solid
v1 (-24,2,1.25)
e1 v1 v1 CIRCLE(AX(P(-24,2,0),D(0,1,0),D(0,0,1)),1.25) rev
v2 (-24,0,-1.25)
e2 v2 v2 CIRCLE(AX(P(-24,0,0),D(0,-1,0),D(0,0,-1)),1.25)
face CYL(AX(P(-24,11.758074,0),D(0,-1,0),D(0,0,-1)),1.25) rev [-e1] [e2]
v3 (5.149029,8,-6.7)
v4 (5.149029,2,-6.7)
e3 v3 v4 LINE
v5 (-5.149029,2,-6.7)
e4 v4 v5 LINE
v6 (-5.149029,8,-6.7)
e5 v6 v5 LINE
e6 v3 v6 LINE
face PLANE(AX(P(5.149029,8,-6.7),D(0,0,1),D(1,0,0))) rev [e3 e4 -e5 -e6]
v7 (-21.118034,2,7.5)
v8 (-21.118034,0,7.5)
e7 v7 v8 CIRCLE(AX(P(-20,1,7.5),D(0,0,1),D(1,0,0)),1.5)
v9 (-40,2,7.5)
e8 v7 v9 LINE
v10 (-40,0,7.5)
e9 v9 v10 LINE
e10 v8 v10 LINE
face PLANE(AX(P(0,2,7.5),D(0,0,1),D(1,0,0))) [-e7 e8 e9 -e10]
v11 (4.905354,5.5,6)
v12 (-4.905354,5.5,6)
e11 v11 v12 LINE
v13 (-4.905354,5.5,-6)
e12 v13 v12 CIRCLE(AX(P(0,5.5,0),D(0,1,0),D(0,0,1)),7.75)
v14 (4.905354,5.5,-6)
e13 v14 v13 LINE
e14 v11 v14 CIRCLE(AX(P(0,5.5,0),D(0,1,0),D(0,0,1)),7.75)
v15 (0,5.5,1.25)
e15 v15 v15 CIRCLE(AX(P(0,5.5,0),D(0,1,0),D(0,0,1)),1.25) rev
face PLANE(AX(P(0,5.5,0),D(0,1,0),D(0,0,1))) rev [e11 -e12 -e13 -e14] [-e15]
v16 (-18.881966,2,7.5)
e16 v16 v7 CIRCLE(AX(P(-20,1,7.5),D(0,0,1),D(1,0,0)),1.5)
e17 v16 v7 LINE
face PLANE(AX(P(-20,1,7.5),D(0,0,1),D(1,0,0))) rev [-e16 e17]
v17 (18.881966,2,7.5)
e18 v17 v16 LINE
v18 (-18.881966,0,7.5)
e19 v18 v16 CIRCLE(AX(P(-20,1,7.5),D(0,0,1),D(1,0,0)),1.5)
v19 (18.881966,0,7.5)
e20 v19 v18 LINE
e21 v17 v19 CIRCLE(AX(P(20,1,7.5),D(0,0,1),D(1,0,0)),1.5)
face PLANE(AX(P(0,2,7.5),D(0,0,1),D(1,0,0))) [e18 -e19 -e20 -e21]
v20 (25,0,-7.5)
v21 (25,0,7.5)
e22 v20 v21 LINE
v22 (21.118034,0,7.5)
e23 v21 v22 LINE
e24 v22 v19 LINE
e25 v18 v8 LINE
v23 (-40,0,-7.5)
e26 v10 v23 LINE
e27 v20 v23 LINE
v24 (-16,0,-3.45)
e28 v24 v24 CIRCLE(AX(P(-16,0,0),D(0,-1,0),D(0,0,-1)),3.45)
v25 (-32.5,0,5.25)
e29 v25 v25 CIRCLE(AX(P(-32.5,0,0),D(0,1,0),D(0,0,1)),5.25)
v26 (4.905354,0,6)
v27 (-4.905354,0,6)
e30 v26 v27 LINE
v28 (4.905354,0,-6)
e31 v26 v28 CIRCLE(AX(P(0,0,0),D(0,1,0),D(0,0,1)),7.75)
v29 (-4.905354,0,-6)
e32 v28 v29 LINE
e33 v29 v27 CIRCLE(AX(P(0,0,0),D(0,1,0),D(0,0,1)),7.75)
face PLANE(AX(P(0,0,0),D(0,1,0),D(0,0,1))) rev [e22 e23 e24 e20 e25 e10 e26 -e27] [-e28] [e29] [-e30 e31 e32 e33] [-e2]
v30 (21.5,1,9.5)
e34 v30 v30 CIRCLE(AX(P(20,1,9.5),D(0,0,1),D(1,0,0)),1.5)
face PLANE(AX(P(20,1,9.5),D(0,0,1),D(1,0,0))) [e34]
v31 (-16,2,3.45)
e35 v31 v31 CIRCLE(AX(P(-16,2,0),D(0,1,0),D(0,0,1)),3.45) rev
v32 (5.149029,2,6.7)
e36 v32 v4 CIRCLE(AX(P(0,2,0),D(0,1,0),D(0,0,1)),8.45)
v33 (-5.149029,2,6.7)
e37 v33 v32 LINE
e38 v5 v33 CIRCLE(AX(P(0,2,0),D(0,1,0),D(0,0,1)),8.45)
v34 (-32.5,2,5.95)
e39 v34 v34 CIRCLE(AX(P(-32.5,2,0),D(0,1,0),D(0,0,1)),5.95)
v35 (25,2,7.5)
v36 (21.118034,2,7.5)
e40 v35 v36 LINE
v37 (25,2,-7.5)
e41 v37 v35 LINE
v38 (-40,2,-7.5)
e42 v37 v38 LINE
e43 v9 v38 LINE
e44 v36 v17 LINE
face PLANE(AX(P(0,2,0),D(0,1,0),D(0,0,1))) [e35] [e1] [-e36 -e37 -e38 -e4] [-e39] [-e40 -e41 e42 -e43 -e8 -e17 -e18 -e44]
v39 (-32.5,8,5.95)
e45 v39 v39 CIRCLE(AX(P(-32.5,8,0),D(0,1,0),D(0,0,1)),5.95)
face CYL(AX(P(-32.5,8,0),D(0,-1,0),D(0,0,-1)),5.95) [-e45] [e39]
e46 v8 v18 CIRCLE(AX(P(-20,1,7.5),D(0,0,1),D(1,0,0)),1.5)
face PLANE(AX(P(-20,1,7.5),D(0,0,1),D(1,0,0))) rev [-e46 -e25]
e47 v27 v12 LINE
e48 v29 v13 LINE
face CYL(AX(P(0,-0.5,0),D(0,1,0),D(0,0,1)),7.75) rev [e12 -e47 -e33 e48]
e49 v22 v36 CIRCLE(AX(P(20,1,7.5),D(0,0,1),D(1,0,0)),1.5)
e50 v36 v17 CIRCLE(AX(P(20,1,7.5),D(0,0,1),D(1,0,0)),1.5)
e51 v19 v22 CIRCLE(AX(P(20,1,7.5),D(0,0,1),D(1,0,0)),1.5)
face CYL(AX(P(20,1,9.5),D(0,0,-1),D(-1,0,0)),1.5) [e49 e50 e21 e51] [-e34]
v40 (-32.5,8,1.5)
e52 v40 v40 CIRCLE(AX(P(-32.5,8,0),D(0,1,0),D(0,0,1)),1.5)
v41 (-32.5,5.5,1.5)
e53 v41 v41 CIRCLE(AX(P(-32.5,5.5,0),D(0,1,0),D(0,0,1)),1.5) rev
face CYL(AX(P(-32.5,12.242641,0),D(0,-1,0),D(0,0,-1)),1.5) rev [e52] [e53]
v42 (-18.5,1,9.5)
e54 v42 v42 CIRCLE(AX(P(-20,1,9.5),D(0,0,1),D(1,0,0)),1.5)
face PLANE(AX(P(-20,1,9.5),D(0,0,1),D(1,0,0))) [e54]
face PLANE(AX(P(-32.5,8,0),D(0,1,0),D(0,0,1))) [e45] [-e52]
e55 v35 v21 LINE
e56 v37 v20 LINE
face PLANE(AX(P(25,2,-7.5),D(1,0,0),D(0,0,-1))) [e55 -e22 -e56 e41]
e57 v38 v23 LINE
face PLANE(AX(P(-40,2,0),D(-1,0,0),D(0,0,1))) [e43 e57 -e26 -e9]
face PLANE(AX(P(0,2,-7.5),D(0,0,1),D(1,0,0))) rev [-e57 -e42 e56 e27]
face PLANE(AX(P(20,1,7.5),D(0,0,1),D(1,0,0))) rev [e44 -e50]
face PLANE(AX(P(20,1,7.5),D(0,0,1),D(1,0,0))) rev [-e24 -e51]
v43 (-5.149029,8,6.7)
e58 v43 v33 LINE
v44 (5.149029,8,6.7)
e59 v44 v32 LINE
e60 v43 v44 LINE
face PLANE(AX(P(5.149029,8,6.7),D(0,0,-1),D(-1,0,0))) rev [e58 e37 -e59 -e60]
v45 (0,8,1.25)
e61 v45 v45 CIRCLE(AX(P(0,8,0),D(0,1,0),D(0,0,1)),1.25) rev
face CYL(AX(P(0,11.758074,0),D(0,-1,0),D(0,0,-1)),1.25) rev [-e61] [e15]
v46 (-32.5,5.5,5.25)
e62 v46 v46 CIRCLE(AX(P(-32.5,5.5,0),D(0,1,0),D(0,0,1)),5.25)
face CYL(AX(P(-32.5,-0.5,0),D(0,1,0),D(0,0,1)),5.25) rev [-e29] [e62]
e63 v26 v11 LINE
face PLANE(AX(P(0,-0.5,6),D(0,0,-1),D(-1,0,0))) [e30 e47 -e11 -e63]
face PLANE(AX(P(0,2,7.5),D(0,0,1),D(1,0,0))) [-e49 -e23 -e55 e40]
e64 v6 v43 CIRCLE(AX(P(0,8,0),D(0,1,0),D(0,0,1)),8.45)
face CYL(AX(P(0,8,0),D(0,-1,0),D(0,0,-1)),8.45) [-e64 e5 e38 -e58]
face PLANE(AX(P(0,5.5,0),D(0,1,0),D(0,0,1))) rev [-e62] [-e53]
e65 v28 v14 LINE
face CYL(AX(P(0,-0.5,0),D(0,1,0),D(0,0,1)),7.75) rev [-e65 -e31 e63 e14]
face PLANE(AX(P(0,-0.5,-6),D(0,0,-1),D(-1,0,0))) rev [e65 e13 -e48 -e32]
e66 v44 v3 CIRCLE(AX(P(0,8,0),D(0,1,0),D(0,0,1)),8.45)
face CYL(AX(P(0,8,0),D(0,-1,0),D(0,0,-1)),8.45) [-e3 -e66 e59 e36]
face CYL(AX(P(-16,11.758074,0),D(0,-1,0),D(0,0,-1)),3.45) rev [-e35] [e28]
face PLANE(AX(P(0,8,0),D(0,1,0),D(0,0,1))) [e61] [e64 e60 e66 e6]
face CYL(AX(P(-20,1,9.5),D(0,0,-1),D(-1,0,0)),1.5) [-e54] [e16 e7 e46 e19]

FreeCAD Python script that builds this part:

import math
import FreeCAD as App
import Part
import Sketcher
from FreeCAD import Vector


def add_polygon(sketch, points):
    """Adds a closed chain of lines whose ends are joined by coincident constraints."""
    first, n = sketch.GeometryCount, len(points)
    for a, b in zip(points, points[1:] + points[:1]):
        sketch.addGeometry(Part.LineSegment(App.Vector(*a, 0), App.Vector(*b, 0)), False)
    for i in range(n):
        sketch.addConstraint(Sketcher.Constraint("Coincident", first + i, 2, first + (i + 1) % n, 1))

doc = App.newDocument("Part")
body = doc.addObject("PartDesign::Body", "Body")

sketch1 = body.newObject("Sketcher::SketchObject", "Sketch")
sketch1.AttachmentSupport = (doc.getObject("XZ_Plane"), [""])
sketch1.MapMode = "FlatFace"
add_polygon(sketch1, [(-40, -7.5), (-40, 7.5), (25, 7.5), (25, -7.5)])
sketch1.addConstraint(Sketcher.Constraint("Vertical", 0))
sketch1.addConstraint(Sketcher.Constraint("Horizontal", 1))
sketch1.addConstraint(Sketcher.Constraint("Vertical", 2))
sketch1.addConstraint(Sketcher.Constraint("Horizontal", 3))
sketch1.addConstraint(Sketcher.Constraint("DistanceX", 1, 1, 1, 2, 65.0))
sketch1.addConstraint(Sketcher.Constraint("DistanceY", 0, 1, 0, 2, 15.0))
sketch1.addConstraint(Sketcher.Constraint("DistanceX", 0, 2, -1, 1, 40.0))
sketch1.addConstraint(Sketcher.Constraint("DistanceY", -1, 1, 0, 2, 7.5))
pad1 = body.newObject("PartDesign::Pad", "Pad")
pad1.Profile = sketch1
pad1.Length = 2
pad1.Reversed = True

sketch2 = body.newObject("Sketcher::SketchObject", "Sketch001")
sketch2.AttachmentSupport = (doc.getObject("XZ_Plane"), [""])
sketch2.MapMode = "FlatFace"
sketch2.addGeometry(Part.Circle(Vector(0, 0, 0), Vector(0, 0, 1), 1.25), False)
sketch2.addGeometry(Part.Circle(Vector(-16, 0, 0), Vector(0, 0, 1), 3.45), False)
sketch2.addGeometry(Part.Circle(Vector(-24, 0, 0), Vector(0, 0, 1), 1.25), False)
sketch2.addGeometry(Part.Circle(Vector(-32.5, 0, 0), Vector(0, 0, 1), 1.5), False)
sketch2.addConstraint(Sketcher.Constraint("Coincident", 0, 3, -1, 1))
sketch2.addConstraint(Sketcher.Constraint("Equal", 0, 2))
sketch2.addConstraint(Sketcher.Constraint("PointOnObject", 1, 3, -1))
sketch2.addConstraint(Sketcher.Constraint("PointOnObject", 2, 3, -1))
sketch2.addConstraint(Sketcher.Constraint("PointOnObject", 3, 3, -1))
sketch2.addConstraint(Sketcher.Constraint("Diameter", 3, 3.0))
sketch2.addConstraint(Sketcher.Constraint("Diameter", 0, 2.5))
sketch2.addConstraint(Sketcher.Constraint("Diameter", 1, 6.9))
sketch2.addConstraint(Sketcher.Constraint("DistanceX", 1, 3, -1, 1, 16.0))
sketch2.addConstraint(Sketcher.Constraint("DistanceX", 2, 3, -1, 1, 24.0))
sketch2.addConstraint(Sketcher.Constraint("DistanceX", 3, 3, -1, 1, 32.5))
pocket1 = body.newObject("PartDesign::Pocket", "Pocket")
pocket1.Profile = sketch2
pocket1.Length = 2

sketch3 = body.newObject("Sketcher::SketchObject", "Sketch002")
sketch3.AttachmentSupport = (doc.getObject("XY_Plane"), [""])
sketch3.MapMode = "FlatFace"
sketch3.AttachmentOffset = App.Placement(Vector(0, 0, 7.5), App.Rotation())
sketch3.addGeometry(Part.Circle(Vector(20, 1, 0), Vector(0, 0, 1), 1.5), False)
sketch3.addGeometry(Part.Circle(Vector(-20, 1, 0), Vector(0, 0, 1), 1.5), False)
sketch3.addConstraint(Sketcher.Constraint("Equal", 0, 1))
sketch3.addConstraint(Sketcher.Constraint("Symmetric", 0, 3, 1, 3, -2))
sketch3.addConstraint(Sketcher.Constraint("Diameter", 0, 3.0))
sketch3.addConstraint(Sketcher.Constraint("DistanceX", -1, 1, 0, 3, 20.0))
sketch3.addConstraint(Sketcher.Constraint("DistanceY", -1, 1, 0, 3, 1.0))
pad2 = body.newObject("PartDesign::Pad", "Pad001")
pad2.Profile = sketch3
pad2.Length = 2

sketch4 = body.newObject("Sketcher::SketchObject", "Sketch003")
sketch4.AttachmentSupport = (doc.getObject("XZ_Plane"), [""])
sketch4.MapMode = "FlatFace"
sketch4.AttachmentOffset = App.Placement(Vector(0, 0, -2), App.Rotation())
sketch4.addGeometry(Part.Circle(Vector(-32.5, 0, 0), Vector(0, 0, 1), 5.95), False)
sketch4.addGeometry(Part.Circle(Vector(-32.5, 0, 0), Vector(0, 0, 1), 5.25), False)
sketch4.addGeometry(Part.LineSegment(Vector(-5.149029, 6.7, 0), Vector(5.149029, 6.7, 0)), False)
sketch4.addGeometry(Part.ArcOfCircle(Part.Circle(Vector(0, 0, 0), Vector(0, 0, 1), 8.45), math.radians(-52.457297), math.radians(52.457297)), False)
sketch4.addGeometry(Part.LineSegment(Vector(5.149029, -6.7, 0), Vector(-5.149029, -6.7, 0)), False)
sketch4.addGeometry(Part.ArcOfCircle(Part.Circle(Vector(0, 0, 0), Vector(0, 0, 1), 8.45), math.radians(127.542703), math.radians(232.457297)), False)
sketch4.addGeometry(Part.LineSegment(Vector(4.905354, 6, 0), Vector(-4.905354, 6, 0)), False)
sketch4.addGeometry(Part.ArcOfCircle(Part.Circle(Vector(0, 0, 0), Vector(0, 0, 1), 7.75), math.radians(129.268026), math.radians(230.731974)), False)
sketch4.addGeometry(Part.LineSegment(Vector(-4.905354, -6, 0), Vector(4.905354, -6, 0)), False)
sketch4.addGeometry(Part.ArcOfCircle(Part.Circle(Vector(0, 0, 0), Vector(0, 0, 1), 7.75), math.radians(-50.731974), math.radians(50.731974)), False)
sketch4.addConstraint(Sketcher.Constraint("Coincident", 2, 2, 3, 2))
sketch4.addConstraint(Sketcher.Constraint("Coincident", 3, 1, 4, 1))
sketch4.addConstraint(Sketcher.Constraint("Coincident", 4, 2, 5, 2))
sketch4.addConstraint(Sketcher.Constraint("Coincident", 5, 1, 2, 1))
sketch4.addConstraint(Sketcher.Constraint("Coincident", 6, 2, 7, 1))
sketch4.addConstraint(Sketcher.Constraint("Coincident", 7, 2, 8, 1))
sketch4.addConstraint(Sketcher.Constraint("Coincident", 8, 2, 9, 1))
sketch4.addConstraint(Sketcher.Constraint("Coincident", 9, 2, 6, 1))
sketch4.addConstraint(Sketcher.Constraint("Horizontal", 2))
sketch4.addConstraint(Sketcher.Constraint("Horizontal", 4))
sketch4.addConstraint(Sketcher.Constraint("Horizontal", 6))
sketch4.addConstraint(Sketcher.Constraint("Horizontal", 8))
sketch4.addConstraint(Sketcher.Constraint("Coincident", 3, 3, -1, 1))
sketch4.addConstraint(Sketcher.Constraint("Coincident", 5, 3, -1, 1))
sketch4.addConstraint(Sketcher.Constraint("Coincident", 7, 3, -1, 1))
sketch4.addConstraint(Sketcher.Constraint("Coincident", 9, 3, -1, 1))
sketch4.addConstraint(Sketcher.Constraint("Coincident", 1, 3, 0, 3))
sketch4.addConstraint(Sketcher.Constraint("Equal", 3, 5))
sketch4.addConstraint(Sketcher.Constraint("Equal", 7, 9))
sketch4.addConstraint(Sketcher.Constraint("PointOnObject", 0, 3, -1))
sketch4.addConstraint(Sketcher.Constraint("Vertical", 2, 2, 3, 1))
sketch4.addConstraint(Sketcher.Constraint("Vertical", 6, 2, 7, 2))
sketch4.addConstraint(Sketcher.Constraint("Diameter", 0, 11.9))
sketch4.addConstraint(Sketcher.Constraint("Diameter", 1, 10.5))
sketch4.addConstraint(Sketcher.Constraint("Radius", 3, 8.45))
sketch4.addConstraint(Sketcher.Constraint("Radius", 7, 7.75))
sketch4.addConstraint(Sketcher.Constraint("DistanceY", -1, 1, 6, 2, 6.0))
sketch4.addConstraint(Sketcher.Constraint("DistanceX", 0, 3, -1, 1, 32.5))
sketch4.addConstraint(Sketcher.Constraint("DistanceY", -1, 1, 2, 2, 6.7))
pad3 = body.newObject("PartDesign::Pad", "Pad002")
pad3.Profile = sketch4
pad3.Length = 6
pad3.Reversed = True

sketch5 = body.newObject("Sketcher::SketchObject", "Sketch004")
sketch5.AttachmentSupport = (doc.getObject("XZ_Plane"), [""])
sketch5.MapMode = "FlatFace"
sketch5.AttachmentOffset = App.Placement(Vector(0, 0, -2), App.Rotation())
sketch5.addGeometry(Part.LineSegment(Vector(-4.905354, 6, 0), Vector(4.905354, 6, 0)), False)
sketch5.addGeometry(Part.ArcOfCircle(Part.Circle(Vector(0, 0, 0), Vector(0, 0, 1), 7.75), math.radians(-50.731974), math.radians(50.731974)), False)
sketch5.addGeometry(Part.LineSegment(Vector(4.905354, -6, 0), Vector(-4.905354, -6, 0)), False)
sketch5.addGeometry(Part.ArcOfCircle(Part.Circle(Vector(0, 0, 0), Vector(0, 0, 1), 7.75), math.radians(129.268026), math.radians(230.731974)), False)
sketch5.addGeometry(Part.Circle(Vector(0, 0, 0), Vector(0, 0, 1), 1.25), False)
sketch5.addGeometry(Part.Circle(Vector(-32.5, 0, 0), Vector(0, 0, 1), 5.25), False)
sketch5.addConstraint(Sketcher.Constraint("Coincident", 0, 2, 1, 2))
sketch5.addConstraint(Sketcher.Constraint("Coincident", 1, 1, 2, 1))
sketch5.addConstraint(Sketcher.Constraint("Coincident", 2, 2, 3, 2))
sketch5.addConstraint(Sketcher.Constraint("Coincident", 3, 1, 0, 1))
sketch5.addConstraint(Sketcher.Constraint("Horizontal", 0))
sketch5.addConstraint(Sketcher.Constraint("Horizontal", 2))
sketch5.addConstraint(Sketcher.Constraint("Coincident", 1, 3, -1, 1))
sketch5.addConstraint(Sketcher.Constraint("Coincident", 3, 3, -1, 1))
sketch5.addConstraint(Sketcher.Constraint("Coincident", 4, 3, -1, 1))
sketch5.addConstraint(Sketcher.Constraint("Equal", 1, 3))
sketch5.addConstraint(Sketcher.Constraint("PointOnObject", 5, 3, -1))
sketch5.addConstraint(Sketcher.Constraint("Vertical", 0, 2, 1, 1))
sketch5.addConstraint(Sketcher.Constraint("Diameter", 4, 2.5))
sketch5.addConstraint(Sketcher.Constraint("Diameter", 5, 10.5))
sketch5.addConstraint(Sketcher.Constraint("Radius", 1, 7.75))
sketch5.addConstraint(Sketcher.Constraint("DistanceY", -1, 1, 0, 2, 6.0))
sketch5.addConstraint(Sketcher.Constraint("DistanceX", 5, 3, -1, 1, 32.5))
pad4 = body.newObject("PartDesign::Pad", "Pad003")
pad4.Profile = sketch5
pad4.Length = 6
pad4.Reversed = True

sketch6 = body.newObject("Sketcher::SketchObject", "Sketch005")
sketch6.AttachmentSupport = (doc.getObject("XZ_Plane"), [""])
sketch6.MapMode = "FlatFace"
sketch6.AttachmentOffset = App.Placement(Vector(0, 0, -2), App.Rotation())
sketch6.addGeometry(Part.LineSegment(Vector(-4.905354, 6, 0), Vector(4.905354, 6, 0)), False)
sketch6.addGeometry(Part.ArcOfCircle(Part.Circle(Vector(0, 0, 0), Vector(0, 0, 1), 7.75), math.radians(-50.731974), math.radians(50.731974)), False)
sketch6.addGeometry(Part.LineSegment(Vector(4.905354, -6, 0), Vector(-4.905354, -6, 0)), False)
sketch6.addGeometry(Part.ArcOfCircle(Part.Circle(Vector(0, 0, 0), Vector(0, 0, 1), 7.75), math.radians(129.268026), math.radians(230.731974)), False)
sketch6.addGeometry(Part.Circle(Vector(0, 0, 0), Vector(0, 0, 1), 1.25), False)
sketch6.addGeometry(Part.Circle(Vector(-32.5, 0, 0), Vector(0, 0, 1), 5.25), False)
sketch6.addConstraint(Sketcher.Constraint("Coincident", 0, 2, 1, 2))
sketch6.addConstraint(Sketcher.Constraint("Coincident", 1, 1, 2, 1))
sketch6.addConstraint(Sketcher.Constraint("Coincident", 2, 2, 3, 2))
sketch6.addConstraint(Sketcher.Constraint("Coincident", 3, 1, 0, 1))
sketch6.addConstraint(Sketcher.Constraint("Horizontal", 0))
sketch6.addConstraint(Sketcher.Constraint("Horizontal", 2))
sketch6.addConstraint(Sketcher.Constraint("Coincident", 1, 3, -1, 1))
sketch6.addConstraint(Sketcher.Constraint("Coincident", 3, 3, -1, 1))
sketch6.addConstraint(Sketcher.Constraint("Coincident", 4, 3, -1, 1))
sketch6.addConstraint(Sketcher.Constraint("Equal", 1, 3))
sketch6.addConstraint(Sketcher.Constraint("PointOnObject", 5, 3, -1))
sketch6.addConstraint(Sketcher.Constraint("Vertical", 0, 2, 1, 1))
sketch6.addConstraint(Sketcher.Constraint("Diameter", 4, 2.5))
sketch6.addConstraint(Sketcher.Constraint("Diameter", 5, 10.5))
sketch6.addConstraint(Sketcher.Constraint("Radius", 1, 7.75))
sketch6.addConstraint(Sketcher.Constraint("DistanceY", -1, 1, 0, 2, 6.0))
sketch6.addConstraint(Sketcher.Constraint("DistanceX", 5, 3, -1, 1, 32.5))
pocket2 = body.newObject("PartDesign::Pocket", "Pocket001")
pocket2.Profile = sketch6
pocket2.Type = "TwoLengths"
pocket2.Length = 3.5
pocket2.Length2 = 42.548165

sketch7 = body.newObject("Sketcher::SketchObject", "Sketch006")
sketch7.AttachmentSupport = (doc.getObject("XZ_Plane"), [""])
sketch7.MapMode = "FlatFace"
sketch7.addGeometry(Part.Circle(Vector(-32.5, 0, 0), Vector(0, 0, 1), 1.5), False)
sketch7.addConstraint(Sketcher.Constraint("PointOnObject", 0, 3, -1))
sketch7.addConstraint(Sketcher.Constraint("Diameter", 0, 3.0))
sketch7.addConstraint(Sketcher.Constraint("DistanceX", 0, 3, -1, 1, 32.5))
pocket3 = body.newObject("PartDesign::Pocket", "Pocket002")
pocket3.Profile = sketch7
pocket3.Length = 8

doc.recompute()
